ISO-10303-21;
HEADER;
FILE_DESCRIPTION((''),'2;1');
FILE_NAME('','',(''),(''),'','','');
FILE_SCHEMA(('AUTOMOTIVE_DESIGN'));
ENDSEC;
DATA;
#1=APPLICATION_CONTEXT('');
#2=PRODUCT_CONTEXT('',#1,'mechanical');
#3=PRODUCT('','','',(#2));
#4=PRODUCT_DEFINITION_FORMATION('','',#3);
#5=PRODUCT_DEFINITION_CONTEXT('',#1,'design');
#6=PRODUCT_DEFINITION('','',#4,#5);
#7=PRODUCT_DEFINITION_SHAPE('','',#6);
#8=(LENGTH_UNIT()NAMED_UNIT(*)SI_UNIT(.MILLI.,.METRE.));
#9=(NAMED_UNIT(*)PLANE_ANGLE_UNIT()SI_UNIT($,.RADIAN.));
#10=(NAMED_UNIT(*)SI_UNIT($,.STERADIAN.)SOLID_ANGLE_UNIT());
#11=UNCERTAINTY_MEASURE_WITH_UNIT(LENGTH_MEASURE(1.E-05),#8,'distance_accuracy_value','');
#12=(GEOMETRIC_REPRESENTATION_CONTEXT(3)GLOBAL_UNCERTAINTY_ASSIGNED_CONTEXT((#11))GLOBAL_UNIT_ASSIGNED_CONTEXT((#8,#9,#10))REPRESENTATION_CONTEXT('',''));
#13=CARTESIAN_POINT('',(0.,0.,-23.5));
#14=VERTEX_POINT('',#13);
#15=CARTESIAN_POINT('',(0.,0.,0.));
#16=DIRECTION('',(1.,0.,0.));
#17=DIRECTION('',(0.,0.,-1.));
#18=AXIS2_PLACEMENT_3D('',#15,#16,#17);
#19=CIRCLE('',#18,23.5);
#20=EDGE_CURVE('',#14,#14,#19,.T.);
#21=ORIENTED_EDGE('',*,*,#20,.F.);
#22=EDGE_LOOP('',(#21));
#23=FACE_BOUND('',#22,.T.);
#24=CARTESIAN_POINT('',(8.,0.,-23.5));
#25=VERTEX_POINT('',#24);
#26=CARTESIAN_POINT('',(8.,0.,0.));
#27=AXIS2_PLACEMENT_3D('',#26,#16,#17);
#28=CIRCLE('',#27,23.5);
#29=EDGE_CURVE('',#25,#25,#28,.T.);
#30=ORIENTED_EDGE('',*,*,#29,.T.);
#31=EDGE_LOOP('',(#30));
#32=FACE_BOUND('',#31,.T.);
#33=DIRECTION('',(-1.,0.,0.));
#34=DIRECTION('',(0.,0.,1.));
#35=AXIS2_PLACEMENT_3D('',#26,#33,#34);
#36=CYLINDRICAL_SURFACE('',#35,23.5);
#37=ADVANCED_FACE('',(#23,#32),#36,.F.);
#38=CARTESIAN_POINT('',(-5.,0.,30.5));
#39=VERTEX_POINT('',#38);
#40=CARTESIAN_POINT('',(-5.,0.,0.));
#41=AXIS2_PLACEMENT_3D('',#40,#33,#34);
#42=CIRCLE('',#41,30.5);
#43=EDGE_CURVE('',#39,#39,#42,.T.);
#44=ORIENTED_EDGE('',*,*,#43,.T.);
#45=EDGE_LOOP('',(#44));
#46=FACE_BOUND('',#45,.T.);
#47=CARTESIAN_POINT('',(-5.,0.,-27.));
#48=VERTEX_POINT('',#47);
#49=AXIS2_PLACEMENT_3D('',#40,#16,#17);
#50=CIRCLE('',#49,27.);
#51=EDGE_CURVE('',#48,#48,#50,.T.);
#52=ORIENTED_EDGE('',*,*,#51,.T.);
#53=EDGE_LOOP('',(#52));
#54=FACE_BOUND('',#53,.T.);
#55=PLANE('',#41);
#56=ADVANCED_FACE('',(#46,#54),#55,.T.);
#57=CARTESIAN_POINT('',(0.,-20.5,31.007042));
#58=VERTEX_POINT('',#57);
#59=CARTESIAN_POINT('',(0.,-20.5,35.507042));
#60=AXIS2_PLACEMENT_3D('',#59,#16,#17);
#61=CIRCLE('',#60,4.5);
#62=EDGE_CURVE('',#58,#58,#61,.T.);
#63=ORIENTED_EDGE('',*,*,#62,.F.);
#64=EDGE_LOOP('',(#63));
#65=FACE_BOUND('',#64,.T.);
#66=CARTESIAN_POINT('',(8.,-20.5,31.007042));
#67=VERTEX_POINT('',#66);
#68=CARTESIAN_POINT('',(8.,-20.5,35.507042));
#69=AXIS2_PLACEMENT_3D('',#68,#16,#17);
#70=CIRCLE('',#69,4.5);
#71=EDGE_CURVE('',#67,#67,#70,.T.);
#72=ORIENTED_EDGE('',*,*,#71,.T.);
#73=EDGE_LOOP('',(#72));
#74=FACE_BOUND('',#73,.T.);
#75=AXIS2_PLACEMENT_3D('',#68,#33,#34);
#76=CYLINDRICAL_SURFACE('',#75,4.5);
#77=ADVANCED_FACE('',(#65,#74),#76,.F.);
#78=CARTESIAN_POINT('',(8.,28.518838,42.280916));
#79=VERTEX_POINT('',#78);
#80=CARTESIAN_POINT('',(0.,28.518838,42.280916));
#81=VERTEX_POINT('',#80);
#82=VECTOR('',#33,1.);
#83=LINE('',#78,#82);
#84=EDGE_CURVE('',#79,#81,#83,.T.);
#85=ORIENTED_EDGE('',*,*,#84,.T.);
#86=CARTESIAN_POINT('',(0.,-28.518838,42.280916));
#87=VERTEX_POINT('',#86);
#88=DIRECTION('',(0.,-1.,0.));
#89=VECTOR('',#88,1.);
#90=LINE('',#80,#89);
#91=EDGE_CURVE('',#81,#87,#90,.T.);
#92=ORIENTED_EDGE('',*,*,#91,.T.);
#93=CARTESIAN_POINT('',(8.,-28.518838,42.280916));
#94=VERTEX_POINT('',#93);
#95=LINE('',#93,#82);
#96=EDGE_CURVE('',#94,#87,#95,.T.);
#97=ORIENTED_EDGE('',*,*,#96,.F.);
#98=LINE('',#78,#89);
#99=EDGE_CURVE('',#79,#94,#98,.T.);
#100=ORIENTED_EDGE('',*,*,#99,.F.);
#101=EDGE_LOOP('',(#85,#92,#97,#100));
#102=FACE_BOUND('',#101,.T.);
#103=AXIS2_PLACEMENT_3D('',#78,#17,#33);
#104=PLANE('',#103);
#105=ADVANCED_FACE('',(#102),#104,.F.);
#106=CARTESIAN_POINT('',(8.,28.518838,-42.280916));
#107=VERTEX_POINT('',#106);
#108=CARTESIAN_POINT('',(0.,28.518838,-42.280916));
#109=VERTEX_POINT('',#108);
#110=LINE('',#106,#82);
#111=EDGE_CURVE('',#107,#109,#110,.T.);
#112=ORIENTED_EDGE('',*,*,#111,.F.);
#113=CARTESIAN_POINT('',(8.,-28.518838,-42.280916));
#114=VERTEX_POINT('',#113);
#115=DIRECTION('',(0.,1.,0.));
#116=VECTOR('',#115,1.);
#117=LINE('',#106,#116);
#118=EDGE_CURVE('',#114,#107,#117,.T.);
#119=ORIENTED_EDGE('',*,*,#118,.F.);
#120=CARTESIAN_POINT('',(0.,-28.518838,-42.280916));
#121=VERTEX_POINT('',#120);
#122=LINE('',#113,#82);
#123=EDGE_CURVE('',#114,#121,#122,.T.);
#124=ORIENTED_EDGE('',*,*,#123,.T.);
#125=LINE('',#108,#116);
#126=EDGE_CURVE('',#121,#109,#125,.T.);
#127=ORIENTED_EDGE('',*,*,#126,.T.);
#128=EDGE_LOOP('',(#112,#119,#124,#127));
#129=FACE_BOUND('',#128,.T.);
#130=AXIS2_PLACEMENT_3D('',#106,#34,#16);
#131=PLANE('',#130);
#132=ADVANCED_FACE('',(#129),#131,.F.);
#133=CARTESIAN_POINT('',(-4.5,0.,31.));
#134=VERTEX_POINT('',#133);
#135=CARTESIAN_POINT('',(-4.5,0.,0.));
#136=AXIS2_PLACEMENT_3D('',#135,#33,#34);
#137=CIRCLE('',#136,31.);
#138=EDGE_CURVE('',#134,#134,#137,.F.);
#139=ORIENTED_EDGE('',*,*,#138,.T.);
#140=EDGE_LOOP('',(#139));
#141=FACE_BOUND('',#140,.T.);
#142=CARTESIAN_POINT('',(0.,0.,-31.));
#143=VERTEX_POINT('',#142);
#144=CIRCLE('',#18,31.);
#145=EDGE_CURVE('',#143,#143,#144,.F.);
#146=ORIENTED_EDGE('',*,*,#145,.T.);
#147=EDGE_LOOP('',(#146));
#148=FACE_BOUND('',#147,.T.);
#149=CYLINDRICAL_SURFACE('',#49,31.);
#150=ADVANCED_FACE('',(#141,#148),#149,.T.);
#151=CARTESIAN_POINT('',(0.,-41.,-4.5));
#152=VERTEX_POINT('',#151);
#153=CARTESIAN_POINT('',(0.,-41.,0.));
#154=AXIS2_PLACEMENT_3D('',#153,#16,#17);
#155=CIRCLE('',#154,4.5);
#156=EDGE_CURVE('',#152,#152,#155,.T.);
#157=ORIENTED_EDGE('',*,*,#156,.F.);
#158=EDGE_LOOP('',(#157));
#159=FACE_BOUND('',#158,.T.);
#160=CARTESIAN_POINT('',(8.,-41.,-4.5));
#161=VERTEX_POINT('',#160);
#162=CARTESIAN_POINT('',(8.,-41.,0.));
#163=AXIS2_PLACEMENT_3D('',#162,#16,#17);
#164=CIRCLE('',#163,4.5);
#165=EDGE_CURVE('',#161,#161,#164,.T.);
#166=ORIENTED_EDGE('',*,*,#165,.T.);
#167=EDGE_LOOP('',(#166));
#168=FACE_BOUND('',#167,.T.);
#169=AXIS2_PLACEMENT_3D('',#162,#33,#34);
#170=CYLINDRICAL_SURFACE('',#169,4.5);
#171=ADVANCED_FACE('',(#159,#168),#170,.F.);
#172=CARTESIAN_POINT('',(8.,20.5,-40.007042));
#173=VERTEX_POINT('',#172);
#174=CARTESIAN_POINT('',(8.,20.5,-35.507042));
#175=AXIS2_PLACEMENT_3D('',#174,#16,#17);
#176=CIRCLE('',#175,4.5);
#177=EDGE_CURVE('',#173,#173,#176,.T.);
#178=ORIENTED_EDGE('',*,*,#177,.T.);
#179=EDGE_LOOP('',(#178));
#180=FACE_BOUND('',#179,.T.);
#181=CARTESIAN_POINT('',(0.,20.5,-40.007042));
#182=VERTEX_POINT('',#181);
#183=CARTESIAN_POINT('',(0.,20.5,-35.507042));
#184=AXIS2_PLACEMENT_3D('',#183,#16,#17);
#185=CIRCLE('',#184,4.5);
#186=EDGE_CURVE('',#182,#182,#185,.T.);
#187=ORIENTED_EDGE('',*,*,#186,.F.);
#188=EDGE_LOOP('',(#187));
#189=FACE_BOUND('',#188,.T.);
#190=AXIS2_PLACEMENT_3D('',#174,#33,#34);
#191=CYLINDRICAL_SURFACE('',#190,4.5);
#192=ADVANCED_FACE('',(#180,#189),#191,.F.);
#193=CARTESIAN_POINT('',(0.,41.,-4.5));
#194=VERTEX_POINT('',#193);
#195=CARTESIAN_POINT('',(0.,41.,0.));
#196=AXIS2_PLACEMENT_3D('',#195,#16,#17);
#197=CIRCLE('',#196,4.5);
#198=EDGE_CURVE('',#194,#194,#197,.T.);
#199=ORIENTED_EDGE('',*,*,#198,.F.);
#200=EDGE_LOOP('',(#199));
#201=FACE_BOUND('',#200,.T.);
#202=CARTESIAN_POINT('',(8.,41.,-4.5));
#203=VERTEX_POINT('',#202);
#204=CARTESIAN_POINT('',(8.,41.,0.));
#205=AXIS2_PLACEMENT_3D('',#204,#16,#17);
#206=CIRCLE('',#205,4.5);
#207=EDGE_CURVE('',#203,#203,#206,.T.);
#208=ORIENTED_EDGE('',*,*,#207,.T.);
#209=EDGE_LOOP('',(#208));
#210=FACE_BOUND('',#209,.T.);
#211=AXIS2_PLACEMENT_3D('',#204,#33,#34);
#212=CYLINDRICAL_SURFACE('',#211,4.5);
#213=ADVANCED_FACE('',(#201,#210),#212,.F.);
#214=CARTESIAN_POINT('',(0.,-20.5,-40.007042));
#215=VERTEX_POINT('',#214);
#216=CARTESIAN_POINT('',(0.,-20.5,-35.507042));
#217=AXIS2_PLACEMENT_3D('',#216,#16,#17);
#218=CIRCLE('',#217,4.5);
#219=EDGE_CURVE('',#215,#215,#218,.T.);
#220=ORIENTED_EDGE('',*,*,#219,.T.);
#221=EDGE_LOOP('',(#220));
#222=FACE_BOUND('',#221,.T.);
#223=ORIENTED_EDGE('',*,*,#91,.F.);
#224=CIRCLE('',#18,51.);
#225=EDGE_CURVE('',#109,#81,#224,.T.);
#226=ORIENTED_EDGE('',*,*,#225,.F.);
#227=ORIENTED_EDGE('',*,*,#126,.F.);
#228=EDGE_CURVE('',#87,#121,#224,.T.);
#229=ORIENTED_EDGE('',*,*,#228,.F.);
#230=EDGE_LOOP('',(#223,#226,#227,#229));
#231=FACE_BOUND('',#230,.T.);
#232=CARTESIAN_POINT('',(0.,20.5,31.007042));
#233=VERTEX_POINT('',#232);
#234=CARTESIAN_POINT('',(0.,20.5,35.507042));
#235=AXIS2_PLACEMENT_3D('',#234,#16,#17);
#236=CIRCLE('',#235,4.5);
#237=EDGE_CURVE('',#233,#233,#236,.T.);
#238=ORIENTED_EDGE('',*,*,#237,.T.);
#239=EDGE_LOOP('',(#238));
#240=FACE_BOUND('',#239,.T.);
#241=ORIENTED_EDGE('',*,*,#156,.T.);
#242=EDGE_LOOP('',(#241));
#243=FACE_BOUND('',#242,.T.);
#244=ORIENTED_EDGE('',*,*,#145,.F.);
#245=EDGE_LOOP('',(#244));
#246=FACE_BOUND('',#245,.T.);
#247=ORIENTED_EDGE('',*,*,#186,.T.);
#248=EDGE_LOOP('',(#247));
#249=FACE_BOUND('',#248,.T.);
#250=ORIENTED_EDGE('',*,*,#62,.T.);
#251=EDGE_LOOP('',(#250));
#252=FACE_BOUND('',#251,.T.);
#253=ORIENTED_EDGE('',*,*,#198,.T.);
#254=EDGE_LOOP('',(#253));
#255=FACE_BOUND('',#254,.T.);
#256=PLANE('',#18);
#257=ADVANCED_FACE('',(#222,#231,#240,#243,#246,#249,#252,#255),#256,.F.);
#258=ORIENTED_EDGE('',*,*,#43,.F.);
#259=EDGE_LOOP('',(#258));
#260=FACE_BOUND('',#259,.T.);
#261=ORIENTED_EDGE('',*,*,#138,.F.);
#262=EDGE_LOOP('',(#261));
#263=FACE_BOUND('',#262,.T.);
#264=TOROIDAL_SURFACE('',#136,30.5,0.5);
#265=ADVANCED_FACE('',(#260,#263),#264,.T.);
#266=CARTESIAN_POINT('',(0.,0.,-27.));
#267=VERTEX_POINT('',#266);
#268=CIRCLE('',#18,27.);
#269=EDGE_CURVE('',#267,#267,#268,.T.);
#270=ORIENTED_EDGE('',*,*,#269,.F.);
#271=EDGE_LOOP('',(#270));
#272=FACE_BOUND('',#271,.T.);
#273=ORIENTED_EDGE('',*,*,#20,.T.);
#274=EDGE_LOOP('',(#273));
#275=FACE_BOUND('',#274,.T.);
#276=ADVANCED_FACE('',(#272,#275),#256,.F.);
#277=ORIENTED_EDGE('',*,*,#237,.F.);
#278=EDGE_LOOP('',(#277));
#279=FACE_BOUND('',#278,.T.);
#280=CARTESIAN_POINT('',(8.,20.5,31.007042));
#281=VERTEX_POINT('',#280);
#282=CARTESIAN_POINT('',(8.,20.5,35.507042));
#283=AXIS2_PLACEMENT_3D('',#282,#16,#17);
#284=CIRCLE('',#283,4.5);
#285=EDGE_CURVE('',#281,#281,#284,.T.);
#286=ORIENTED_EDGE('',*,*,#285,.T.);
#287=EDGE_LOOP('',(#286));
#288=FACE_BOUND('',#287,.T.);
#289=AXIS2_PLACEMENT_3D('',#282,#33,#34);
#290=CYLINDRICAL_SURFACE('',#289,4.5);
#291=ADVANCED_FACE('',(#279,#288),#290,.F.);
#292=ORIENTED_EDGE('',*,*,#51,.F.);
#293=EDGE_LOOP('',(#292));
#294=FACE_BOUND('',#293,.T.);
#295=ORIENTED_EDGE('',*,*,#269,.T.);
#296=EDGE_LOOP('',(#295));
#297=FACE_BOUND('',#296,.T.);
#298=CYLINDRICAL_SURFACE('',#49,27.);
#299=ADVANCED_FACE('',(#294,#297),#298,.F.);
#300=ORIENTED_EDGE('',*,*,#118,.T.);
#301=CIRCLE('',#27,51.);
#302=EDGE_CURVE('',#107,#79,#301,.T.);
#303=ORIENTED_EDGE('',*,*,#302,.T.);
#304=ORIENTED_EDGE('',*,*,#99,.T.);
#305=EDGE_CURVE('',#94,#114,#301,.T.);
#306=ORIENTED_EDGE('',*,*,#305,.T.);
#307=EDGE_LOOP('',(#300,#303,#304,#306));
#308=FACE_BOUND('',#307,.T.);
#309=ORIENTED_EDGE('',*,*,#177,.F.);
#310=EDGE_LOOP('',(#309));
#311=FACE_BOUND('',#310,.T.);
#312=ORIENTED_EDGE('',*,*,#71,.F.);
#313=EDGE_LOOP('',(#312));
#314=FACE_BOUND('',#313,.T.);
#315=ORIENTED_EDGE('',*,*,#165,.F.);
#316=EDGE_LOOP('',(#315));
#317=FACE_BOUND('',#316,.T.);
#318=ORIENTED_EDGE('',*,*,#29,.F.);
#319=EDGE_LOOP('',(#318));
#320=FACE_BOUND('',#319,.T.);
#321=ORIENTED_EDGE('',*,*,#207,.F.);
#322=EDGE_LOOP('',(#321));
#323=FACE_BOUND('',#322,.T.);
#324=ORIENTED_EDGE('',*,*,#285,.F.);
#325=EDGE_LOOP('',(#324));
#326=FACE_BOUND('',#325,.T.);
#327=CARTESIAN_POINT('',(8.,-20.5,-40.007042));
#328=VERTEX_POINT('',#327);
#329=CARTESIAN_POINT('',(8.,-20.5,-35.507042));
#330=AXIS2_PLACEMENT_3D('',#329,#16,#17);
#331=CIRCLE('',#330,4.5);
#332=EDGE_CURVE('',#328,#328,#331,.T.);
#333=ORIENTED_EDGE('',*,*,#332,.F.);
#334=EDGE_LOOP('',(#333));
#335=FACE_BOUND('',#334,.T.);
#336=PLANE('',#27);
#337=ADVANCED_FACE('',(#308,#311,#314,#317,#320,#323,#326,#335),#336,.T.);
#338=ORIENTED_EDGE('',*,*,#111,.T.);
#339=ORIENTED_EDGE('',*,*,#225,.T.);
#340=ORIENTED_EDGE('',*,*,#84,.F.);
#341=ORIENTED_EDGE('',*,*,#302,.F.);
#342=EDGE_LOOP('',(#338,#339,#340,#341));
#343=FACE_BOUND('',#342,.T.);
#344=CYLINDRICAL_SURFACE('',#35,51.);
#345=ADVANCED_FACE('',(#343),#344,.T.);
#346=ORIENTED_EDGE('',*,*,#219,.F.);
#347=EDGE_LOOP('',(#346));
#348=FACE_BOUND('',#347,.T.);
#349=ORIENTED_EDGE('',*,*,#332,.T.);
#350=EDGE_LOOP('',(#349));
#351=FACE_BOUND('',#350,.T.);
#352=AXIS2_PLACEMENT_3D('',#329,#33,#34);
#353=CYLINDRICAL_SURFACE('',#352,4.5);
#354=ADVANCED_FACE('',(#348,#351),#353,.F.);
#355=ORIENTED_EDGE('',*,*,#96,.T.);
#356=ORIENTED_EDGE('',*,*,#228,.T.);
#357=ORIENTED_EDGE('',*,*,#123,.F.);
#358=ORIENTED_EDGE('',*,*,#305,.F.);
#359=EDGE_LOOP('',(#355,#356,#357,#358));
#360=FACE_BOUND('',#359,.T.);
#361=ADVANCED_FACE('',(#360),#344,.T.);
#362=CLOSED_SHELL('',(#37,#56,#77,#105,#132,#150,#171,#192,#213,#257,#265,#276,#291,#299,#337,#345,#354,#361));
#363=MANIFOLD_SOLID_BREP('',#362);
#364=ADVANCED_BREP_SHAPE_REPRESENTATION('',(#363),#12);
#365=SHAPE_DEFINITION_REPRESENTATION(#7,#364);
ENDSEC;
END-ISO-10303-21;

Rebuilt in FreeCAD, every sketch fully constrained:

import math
import FreeCAD as App
import Part
import Sketcher
from FreeCAD import Vector
Q = App.Units.Quantity


def edges_at(feature, points):
    """Names of the edges that pass closest to the given points."""
    edges = feature.Shape.Edges
    near = lambda p: min(range(len(edges)), key=lambda i: edges[i].distToShape(Part.Vertex(*p))[0])
    return sorted({f"Edge{near(p) + 1}" for p in points})

doc = App.newDocument("Part")
body = doc.addObject("PartDesign::Body", "Body")

# Sketch on YZ plane
sketch1 = body.newObject("Sketcher::SketchObject", "Sketch")
sketch1.AttachmentSupport = (doc.getObject("YZ_Plane"), [""])
sketch1.MapMode = "FlatFace"
sketch1.addGeometry([
    Part.LineSegment(Vector(-28.5, -42.3, 0), Vector(28.5, -42.3, 0)),  # 0
    Part.ArcOfCircle(Part.Circle(Vector(0, 0, 0), Vector(0, 0, 1), 51), math.radians(-56), math.radians(56)),  # 1
    Part.LineSegment(Vector(28.5, 42.3, 0), Vector(-28.5, 42.3, 0)),  # 2
    Part.ArcOfCircle(Part.Circle(Vector(0, 0, 0), Vector(0, 0, 1), 51), math.radians(124), math.radians(236)),  # 3
    Part.Circle(Vector(-20.5, -35.5, 0), Vector(0, 0, 1), 4.5),  # 4
    Part.Circle(Vector(-41, 0, 0), Vector(0, 0, 1), 4.5),  # 5
    Part.Circle(Vector(-20.5, 35.5, 0), Vector(0, 0, 1), 4.5),  # 6
    Part.Circle(Vector(20.5, -35.5, 0), Vector(0, 0, 1), 4.5),  # 7
    Part.Circle(Vector(0, 0, 0), Vector(0, 0, 1), 23.5),  # 8
    Part.Circle(Vector(20.5, 35.5, 0), Vector(0, 0, 1), 4.5),  # 9
    Part.Circle(Vector(41, 0, 0), Vector(0, 0, 1), 4.5),  # 10
], False)
sketch1.addConstraint([
    Sketcher.Constraint("Coincident", 0, 2, 1, 1),
    Sketcher.Constraint("Coincident", 1, 2, 2, 1),
    Sketcher.Constraint("Coincident", 2, 2, 3, 1),
    Sketcher.Constraint("Coincident", 3, 2, 0, 1),
    Sketcher.Constraint("Horizontal", 0),
    Sketcher.Constraint("Horizontal", 2),
    Sketcher.Constraint("Coincident", 1, 3, -1, 1),
    Sketcher.Constraint("Coincident", 3, 3, -1, 1),
    Sketcher.Constraint("Coincident", 8, 3, -1, 1),
    Sketcher.Constraint("Equal", 1, 3),
    Sketcher.Constraint("Equal", 4, 5),
    Sketcher.Constraint("Equal", 5, 6),
    Sketcher.Constraint("Equal", 6, 7),
    Sketcher.Constraint("Equal", 7, 9),
    Sketcher.Constraint("Equal", 9, 10),
    Sketcher.Constraint("Symmetric", 6, 3, 7, 3, -1, 1),
    Sketcher.Constraint("Symmetric", 4, 3, 9, 3, -1, 1),
    Sketcher.Constraint("Symmetric", 5, 3, 10, 3, -1, 1),
    Sketcher.Constraint("Symmetric", 4, 3, 7, 3, -2),
    Sketcher.Constraint("PointOnObject", 5, 3, -1),
    Sketcher.Constraint("Vertical", 0, 2, 1, 2),
    Sketcher.Constraint("Diameter", 4, Q("9 mm")),
    Sketcher.Constraint("Diameter", 8, Q("47 mm")),
    Sketcher.Constraint("Radius", 1, Q("51 mm")),
    Sketcher.Constraint("DistanceX", 5, 3, -1, 1, Q("41 mm")),
    Sketcher.Constraint("DistanceX", 4, 3, 7, 3, Q("41 mm")),
    Sketcher.Constraint("DistanceX", 0, 1, 0, 2, Q("57.037676 mm")),
    Sketcher.Constraint("DistanceY", 4, 3, -1, 1, Q("35.507042 mm")),
])
pad1 = body.newObject("PartDesign::Pad", "Pad")
pad1.Profile = sketch1
pad1.Length = 8

# Sketch on YZ plane
sketch2 = body.newObject("Sketcher::SketchObject", "Sketch001")
sketch2.AttachmentSupport = (doc.getObject("YZ_Plane"), [""])
sketch2.MapMode = "FlatFace"
sketch2.addGeometry(Part.Circle(Vector(0, 0, 0), Vector(0, 0, 1), 31), False)
sketch2.addConstraint([
    Sketcher.Constraint("Coincident", 0, 3, -1, 1),
    Sketcher.Constraint("Diameter", 0, Q("62 mm")),
])
pad2 = body.newObject("PartDesign::Pad", "Pad001")
pad2.Profile = sketch2
pad2.Length = 5
pad2.Reversed = True
doc.recompute()

fillet = body.newObject("PartDesign::Fillet", "Fillet")
fillet.Base = (pad2, edges_at(pad2, [(-5, 0, 31)]))
fillet.Radius = 0.5

# Sketch on YZ plane
sketch3 = body.newObject("Sketcher::SketchObject", "Sketch002")
sketch3.AttachmentSupport = (doc.getObject("YZ_Plane"), [""])
sketch3.MapMode = "FlatFace"
sketch3.addGeometry(Part.Circle(Vector(0, 0, 0), Vector(0, 0, 1), 27), False)
sketch3.addConstraint([
    Sketcher.Constraint("Coincident", 0, 3, -1, 1),
    Sketcher.Constraint("Diameter", 0, Q("54 mm")),
])
pocket1 = body.newObject("PartDesign::Pocket", "Pocket")
pocket1.Profile = sketch3
pocket1.Type = "ThroughAll"

doc.recompute()
